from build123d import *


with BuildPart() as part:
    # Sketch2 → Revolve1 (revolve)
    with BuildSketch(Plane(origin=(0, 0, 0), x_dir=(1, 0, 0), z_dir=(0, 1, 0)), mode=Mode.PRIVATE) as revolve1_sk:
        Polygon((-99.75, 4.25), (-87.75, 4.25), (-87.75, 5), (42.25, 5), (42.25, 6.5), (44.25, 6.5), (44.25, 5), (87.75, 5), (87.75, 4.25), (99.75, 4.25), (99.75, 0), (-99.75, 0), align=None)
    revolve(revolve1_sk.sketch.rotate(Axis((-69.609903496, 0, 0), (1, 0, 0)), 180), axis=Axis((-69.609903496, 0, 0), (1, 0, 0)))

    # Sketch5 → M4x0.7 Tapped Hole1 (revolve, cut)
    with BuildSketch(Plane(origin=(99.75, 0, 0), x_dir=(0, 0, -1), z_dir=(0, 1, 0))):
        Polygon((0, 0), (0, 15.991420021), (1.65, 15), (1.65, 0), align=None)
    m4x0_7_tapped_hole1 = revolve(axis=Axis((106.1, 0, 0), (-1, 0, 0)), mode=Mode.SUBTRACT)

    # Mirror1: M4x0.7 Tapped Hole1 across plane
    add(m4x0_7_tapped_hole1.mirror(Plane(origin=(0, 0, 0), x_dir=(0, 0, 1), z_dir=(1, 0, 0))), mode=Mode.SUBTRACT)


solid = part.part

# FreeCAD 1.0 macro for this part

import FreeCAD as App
import Part
import Sketcher

V = App.Vector
Q = App.Units.Quantity

doc = App.newDocument("Part")
params = doc.addObject("Spreadsheet::Sheet", "Params")
for row, (alias, value) in enumerate([
    ("sketch1_width", "12 mm"),
    ("sketch1_width2", "2 mm"),
    ("sketch1_width3", "130 mm"),
    ("sketch1_width4", "199.5 mm"),
    ("sketch1_height", "1.5 mm"),
    ("revolution_angle", "360 deg"),
    ("sketch2_width", "15 mm"),
    ("sketch2_height", "1.65 mm"),
    ("groove_angle", "360 deg"),
], start=1):
    params.set(f"A{row}", alias)
    params.set(f"B{row}", "=" + value)
    params.setAlias(f"B{row}", alias)

body = doc.addObject("PartDesign::Body", "Body")

sketch1 = doc.addObject("Sketcher::SketchObject", "Sketch")
body.addObject(sketch1)
sketch1.AttachmentSupport = (doc.XZ_Plane, [""])
sketch1.MapMode = "FlatFace"
sketch1.addGeometry([
    Part.LineSegment(V(-87.8, -4.2, 0), V(-99.8, -4.2, 0)),
    Part.LineSegment(V(-99.8, -4.2, 0), V(-99.8, 0, 0)),
    Part.LineSegment(V(-99.8, 0, 0), V(99.8, 0, 0)),
    Part.LineSegment(V(99.8, 0, 0), V(99.8, -4.2, 0)),
    Part.LineSegment(V(99.8, -4.2, 0), V(87.8, -4.2, 0)),
    Part.LineSegment(V(87.8, -4.2, 0), V(87.8, -5, 0)),
    Part.LineSegment(V(87.8, -5, 0), V(44.2, -5, 0)),
    Part.LineSegment(V(44.2, -5, 0), V(44.2, -6.5, 0)),
    Part.LineSegment(V(44.2, -6.5, 0), V(42.2, -6.5, 0)),
    Part.LineSegment(V(42.2, -6.5, 0), V(42.2, -5, 0)),
    Part.LineSegment(V(42.2, -5, 0), V(-87.8, -5, 0)),
    Part.LineSegment(V(-87.8, -5, 0), V(-87.8, -4.2, 0)),
], False)
sketch1.addConstraint([
    Sketcher.Constraint("Coincident", 0, 2, 1, 1),
    Sketcher.Constraint("Coincident", 1, 2, 2, 1),
    Sketcher.Constraint("Coincident", 2, 2, 3, 1),
    Sketcher.Constraint("Coincident", 3, 2, 4, 1),
    Sketcher.Constraint("Coincident", 4, 2, 5, 1),
    Sketcher.Constraint("Coincident", 5, 2, 6, 1),
    Sketcher.Constraint("Coincident", 6, 2, 7, 1),
    Sketcher.Constraint("Coincident", 7, 2, 8, 1),
    Sketcher.Constraint("Coincident", 8, 2, 9, 1),
    Sketcher.Constraint("Coincident", 9, 2, 10, 1),
    Sketcher.Constraint("Coincident", 10, 2, 11, 1),
    Sketcher.Constraint("Coincident", 11, 2, 0, 1),
    Sketcher.Constraint("Horizontal", 0),
    Sketcher.Constraint("Vertical", 1),
    Sketcher.Constraint("Horizontal", 2),
    Sketcher.Constraint("Vertical", 3),
    Sketcher.Constraint("Horizontal", 4),
    Sketcher.Constraint("Vertical", 5),
    Sketcher.Constraint("Horizontal", 6),
    Sketcher.Constraint("Vertical", 7),
    Sketcher.Constraint("Horizontal", 8),
    Sketcher.Constraint("Vertical", 9),
    Sketcher.Constraint("Horizontal", 10),
    Sketcher.Constraint("Vertical", 11),
    Sketcher.Constraint("Symmetric", 1, 2, 2, 2, -1, 1),
    Sketcher.Constraint("Symmetric", 5, 2, 10, 2, -2),
    Sketcher.Constraint("Horizontal", 0, 2, 3, 2),
    Sketcher.Constraint("DistanceX", 0, 2, 0, 1, 12.0),
    Sketcher.Constraint("DistanceX", 8, 2, 8, 1, 2.0),
    Sketcher.Constraint("DistanceX", 10, 2, 10, 1, 130.0),
    Sketcher.Constraint("DistanceX", 2, 1, 2, 2, 199.5),
    Sketcher.Constraint("DistanceY", 7, 2, 7, 1, 1.5),
    Sketcher.Constraint("DistanceY", 5, 2, -1, 1, 5.0),
    Sketcher.Constraint("DistanceY", 1, 1, 1, 2, 4.25),
])
sketch1.setExpression("Constraints[27]", "Params.sketch1_width")
sketch1.setExpression("Constraints[28]", "Params.sketch1_width2")
sketch1.setExpression("Constraints[29]", "Params.sketch1_width3")
sketch1.setExpression("Constraints[30]", "Params.sketch1_width4")
sketch1.setExpression("Constraints[31]", "Params.sketch1_height")
revolution = doc.addObject("PartDesign::Revolution", "Revolution")
body.addObject(revolution)
revolution.Profile = sketch1
revolution.ReferenceAxis = (sketch1, ["H_Axis"])
revolution.setExpression("Angle", "Params.revolution_angle")

sketch2 = doc.addObject("Sketcher::SketchObject", "Sketch001")
body.addObject(sketch2)
sketch2.AttachmentSupport = (doc.XZ_Plane, [""])
sketch2.MapMode = "FlatFace"
sketch2.addGeometry([
    Part.LineSegment(V(83.8, 0, 0), V(99.8, 0, 0)),
    Part.LineSegment(V(99.8, 0, 0), V(99.8, -1.6, 0)),
    Part.LineSegment(V(99.8, -1.6, 0), V(84.8, -1.6, 0)),
    Part.LineSegment(V(84.8, -1.6, 0), V(83.8, 0, 0)),
], False)
sketch2.addConstraint([
    Sketcher.Constraint("Coincident", 0, 2, 1, 1),
    Sketcher.Constraint("Coincident", 1, 2, 2, 1),
    Sketcher.Constraint("Coincident", 2, 2, 3, 1),
    Sketcher.Constraint("Coincident", 3, 2, 0, 1),
    Sketcher.Constraint("Horizontal", 0),
    Sketcher.Constraint("Vertical", 1),
    Sketcher.Constraint("Horizontal", 2),
    Sketcher.Constraint("PointOnObject", 0, 2, -1),
    Sketcher.Constraint("DistanceX", 2, 2, 2, 1, 15.0),
    Sketcher.Constraint("Angle", 3, Q("121 deg")),
    Sketcher.Constraint("DistanceY", 1, 2, 1, 1, 1.65),
    Sketcher.Constraint("DistanceX", -1, 1, 0, 2, 99.75),
])
sketch2.setExpression("Constraints[8]", "Params.sketch2_width")
sketch2.setExpression("Constraints[10]", "Params.sketch2_height")
groove = doc.addObject("PartDesign::Groove", "Groove")
body.addObject(groove)
groove.Profile = sketch2
groove.ReferenceAxis = (sketch2, ["H_Axis"])
groove.setExpression("Angle", "Params.groove_angle")
doc.recompute()

mirrored = doc.addObject("PartDesign::Mirrored", "Mirrored")
body.addObject(mirrored)
mirrored.Originals = [groove]
mirrored.MirrorPlane = (doc.YZ_Plane, [""])
body.Tip = mirrored

doc.recompute()
